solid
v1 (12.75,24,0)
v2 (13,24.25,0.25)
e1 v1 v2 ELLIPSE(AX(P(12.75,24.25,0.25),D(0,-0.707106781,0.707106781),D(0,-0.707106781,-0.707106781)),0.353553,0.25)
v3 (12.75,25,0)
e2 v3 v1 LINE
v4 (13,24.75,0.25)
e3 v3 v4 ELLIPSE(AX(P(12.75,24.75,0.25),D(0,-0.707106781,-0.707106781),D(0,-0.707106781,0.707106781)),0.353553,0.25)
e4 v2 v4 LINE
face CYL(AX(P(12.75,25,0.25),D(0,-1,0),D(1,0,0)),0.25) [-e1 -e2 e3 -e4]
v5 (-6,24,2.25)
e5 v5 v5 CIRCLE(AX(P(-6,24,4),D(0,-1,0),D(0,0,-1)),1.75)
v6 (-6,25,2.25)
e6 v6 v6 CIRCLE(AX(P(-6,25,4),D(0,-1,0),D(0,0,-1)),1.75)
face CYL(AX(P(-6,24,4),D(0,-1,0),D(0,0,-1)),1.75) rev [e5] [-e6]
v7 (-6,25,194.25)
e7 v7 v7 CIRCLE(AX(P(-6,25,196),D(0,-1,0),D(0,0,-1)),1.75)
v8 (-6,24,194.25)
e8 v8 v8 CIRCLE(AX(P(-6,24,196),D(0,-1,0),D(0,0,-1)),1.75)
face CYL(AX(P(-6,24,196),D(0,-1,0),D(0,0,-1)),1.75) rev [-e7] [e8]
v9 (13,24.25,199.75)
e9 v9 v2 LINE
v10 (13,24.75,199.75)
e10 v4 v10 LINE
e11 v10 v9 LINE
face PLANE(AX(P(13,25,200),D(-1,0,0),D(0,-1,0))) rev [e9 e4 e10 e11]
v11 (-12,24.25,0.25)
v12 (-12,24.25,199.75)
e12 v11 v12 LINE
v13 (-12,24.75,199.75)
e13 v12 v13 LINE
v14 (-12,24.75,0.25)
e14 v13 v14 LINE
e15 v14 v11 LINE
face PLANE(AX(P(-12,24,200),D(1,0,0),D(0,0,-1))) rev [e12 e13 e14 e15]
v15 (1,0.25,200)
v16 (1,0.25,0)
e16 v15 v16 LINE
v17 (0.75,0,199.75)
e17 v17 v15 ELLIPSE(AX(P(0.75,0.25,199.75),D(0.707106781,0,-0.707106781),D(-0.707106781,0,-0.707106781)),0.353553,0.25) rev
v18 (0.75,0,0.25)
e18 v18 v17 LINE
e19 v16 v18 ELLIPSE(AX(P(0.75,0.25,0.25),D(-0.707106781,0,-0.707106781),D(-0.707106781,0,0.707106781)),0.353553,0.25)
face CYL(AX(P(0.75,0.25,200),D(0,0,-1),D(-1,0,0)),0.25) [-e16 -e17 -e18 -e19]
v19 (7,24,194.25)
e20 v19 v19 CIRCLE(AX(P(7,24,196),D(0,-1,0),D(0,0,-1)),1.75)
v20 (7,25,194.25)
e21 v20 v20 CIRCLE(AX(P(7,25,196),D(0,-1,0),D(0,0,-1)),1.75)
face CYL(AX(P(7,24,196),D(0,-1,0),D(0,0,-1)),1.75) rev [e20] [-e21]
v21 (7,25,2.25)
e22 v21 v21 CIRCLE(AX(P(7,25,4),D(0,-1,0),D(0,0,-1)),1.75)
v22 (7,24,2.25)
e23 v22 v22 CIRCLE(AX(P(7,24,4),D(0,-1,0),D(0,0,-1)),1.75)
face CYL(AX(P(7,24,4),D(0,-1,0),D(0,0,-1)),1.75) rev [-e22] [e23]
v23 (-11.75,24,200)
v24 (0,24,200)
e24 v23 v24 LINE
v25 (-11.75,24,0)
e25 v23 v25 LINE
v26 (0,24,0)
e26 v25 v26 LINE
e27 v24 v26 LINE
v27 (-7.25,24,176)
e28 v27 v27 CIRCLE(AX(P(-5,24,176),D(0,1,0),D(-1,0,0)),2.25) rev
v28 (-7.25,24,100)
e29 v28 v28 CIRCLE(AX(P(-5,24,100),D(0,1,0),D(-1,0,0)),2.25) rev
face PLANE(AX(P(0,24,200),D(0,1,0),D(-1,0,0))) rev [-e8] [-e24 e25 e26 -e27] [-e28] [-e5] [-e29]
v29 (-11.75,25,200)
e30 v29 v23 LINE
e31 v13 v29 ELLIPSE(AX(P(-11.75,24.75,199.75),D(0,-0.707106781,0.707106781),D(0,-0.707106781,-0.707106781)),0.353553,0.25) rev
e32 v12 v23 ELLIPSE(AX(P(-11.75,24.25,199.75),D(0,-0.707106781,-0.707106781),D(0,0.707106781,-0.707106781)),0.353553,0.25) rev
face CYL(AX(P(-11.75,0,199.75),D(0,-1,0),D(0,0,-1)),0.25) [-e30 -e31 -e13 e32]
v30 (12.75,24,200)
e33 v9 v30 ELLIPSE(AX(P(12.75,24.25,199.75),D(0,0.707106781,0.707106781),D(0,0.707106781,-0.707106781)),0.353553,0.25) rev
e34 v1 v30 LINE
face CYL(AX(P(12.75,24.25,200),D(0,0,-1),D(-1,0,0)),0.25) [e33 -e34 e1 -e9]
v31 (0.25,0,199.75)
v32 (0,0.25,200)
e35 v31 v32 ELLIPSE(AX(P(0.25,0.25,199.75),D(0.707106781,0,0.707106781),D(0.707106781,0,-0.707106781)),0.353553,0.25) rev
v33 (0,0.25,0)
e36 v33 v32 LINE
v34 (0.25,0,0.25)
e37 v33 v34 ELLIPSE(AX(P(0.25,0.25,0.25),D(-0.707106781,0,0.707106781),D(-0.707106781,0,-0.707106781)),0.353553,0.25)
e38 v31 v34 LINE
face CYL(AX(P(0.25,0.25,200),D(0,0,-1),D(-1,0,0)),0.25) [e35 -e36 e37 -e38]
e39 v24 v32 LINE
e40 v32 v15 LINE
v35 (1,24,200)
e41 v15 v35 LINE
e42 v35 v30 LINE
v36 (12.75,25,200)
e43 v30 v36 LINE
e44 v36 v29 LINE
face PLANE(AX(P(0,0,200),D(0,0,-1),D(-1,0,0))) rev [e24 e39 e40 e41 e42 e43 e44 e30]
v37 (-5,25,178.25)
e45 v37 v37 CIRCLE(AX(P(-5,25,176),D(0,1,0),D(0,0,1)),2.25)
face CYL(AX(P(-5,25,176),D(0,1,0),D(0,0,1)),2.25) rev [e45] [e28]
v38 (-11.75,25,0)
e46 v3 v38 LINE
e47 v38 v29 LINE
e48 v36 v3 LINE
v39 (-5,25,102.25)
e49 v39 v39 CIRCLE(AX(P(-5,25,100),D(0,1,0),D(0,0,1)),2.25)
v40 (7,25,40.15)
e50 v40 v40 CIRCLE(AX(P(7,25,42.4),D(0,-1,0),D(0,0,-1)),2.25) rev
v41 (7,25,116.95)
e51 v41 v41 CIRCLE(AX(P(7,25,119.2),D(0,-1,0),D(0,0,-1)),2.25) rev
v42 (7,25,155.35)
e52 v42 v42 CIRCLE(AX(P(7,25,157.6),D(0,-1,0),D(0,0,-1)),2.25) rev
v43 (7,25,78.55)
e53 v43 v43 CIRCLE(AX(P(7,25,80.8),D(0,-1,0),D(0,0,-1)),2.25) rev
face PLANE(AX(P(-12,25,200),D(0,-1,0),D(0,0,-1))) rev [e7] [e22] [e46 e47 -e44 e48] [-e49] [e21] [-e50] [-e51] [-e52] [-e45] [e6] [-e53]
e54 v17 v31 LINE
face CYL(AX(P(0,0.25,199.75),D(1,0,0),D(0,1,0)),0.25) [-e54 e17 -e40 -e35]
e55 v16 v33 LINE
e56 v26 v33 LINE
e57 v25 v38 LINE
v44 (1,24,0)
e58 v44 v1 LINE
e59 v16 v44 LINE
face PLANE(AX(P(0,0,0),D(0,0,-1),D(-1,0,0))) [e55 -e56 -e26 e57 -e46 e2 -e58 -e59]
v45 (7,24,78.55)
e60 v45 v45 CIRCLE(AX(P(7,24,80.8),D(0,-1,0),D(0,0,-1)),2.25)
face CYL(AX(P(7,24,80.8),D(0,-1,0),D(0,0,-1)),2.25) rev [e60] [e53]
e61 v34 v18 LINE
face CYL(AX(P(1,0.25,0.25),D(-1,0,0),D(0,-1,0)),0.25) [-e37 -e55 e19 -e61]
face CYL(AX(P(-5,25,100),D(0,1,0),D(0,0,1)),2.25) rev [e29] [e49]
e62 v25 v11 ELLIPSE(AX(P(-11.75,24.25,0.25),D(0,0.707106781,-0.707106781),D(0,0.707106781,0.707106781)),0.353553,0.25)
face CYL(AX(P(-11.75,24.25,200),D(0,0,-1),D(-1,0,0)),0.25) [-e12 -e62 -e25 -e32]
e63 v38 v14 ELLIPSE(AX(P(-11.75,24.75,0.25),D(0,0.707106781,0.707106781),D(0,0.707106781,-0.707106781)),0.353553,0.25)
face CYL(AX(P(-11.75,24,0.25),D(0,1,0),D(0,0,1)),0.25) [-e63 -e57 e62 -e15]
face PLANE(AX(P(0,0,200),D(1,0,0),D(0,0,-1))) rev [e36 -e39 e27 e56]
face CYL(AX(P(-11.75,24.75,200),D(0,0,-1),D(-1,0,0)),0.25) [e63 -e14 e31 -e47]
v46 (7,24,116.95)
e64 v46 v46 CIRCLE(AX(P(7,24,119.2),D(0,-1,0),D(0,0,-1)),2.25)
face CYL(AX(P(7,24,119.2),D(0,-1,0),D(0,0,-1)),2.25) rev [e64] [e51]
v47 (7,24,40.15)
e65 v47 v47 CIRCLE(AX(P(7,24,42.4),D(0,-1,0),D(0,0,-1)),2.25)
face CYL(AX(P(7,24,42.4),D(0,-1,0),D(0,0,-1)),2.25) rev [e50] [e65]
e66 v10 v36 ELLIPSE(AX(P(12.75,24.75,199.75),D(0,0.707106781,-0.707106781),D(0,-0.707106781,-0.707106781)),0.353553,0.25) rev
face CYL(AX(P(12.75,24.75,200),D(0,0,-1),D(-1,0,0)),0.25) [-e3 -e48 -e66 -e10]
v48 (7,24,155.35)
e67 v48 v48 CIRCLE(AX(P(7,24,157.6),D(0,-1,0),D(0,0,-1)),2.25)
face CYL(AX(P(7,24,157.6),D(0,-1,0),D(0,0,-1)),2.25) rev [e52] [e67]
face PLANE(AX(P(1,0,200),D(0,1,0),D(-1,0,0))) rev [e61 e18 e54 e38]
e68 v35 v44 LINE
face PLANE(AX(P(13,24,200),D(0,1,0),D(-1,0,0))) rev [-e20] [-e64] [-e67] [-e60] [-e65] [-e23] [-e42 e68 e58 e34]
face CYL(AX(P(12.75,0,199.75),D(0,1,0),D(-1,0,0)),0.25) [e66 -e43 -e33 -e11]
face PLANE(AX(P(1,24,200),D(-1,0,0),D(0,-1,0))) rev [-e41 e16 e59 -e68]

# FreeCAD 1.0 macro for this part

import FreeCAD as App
import Part
import Sketcher
Q = App.Units.Quantity


def edges_at(feature, points):
    """Names of the edges that pass closest to the given points."""
    edges = feature.Shape.Edges
    near = lambda p: min(range(len(edges)), key=lambda i: edges[i].distToShape(Part.Vertex(*p))[0])
    return sorted({f"Edge{near(p) + 1}" for p in points})


def add_polygon(sketch, points):
    """Adds a closed chain of lines whose ends are joined by coincident constraints."""
    first, n = sketch.GeometryCount, len(points)
    for a, b in zip(points, points[1:] + points[:1]):
        sketch.addGeometry(Part.LineSegment(App.Vector(*a, 0), App.Vector(*b, 0)), False)
    for i in range(n):
        sketch.addConstraint(Sketcher.Constraint("Coincident", first + i, 2, first + (i + 1) % n, 1))

doc = App.newDocument("Part")
body = doc.addObject("PartDesign::Body", "Body")

# Sketch on XY plane
sketch1 = body.newObject("Sketcher::SketchObject", "Sketch")
sketch1.AttachmentSupport = (doc.getObject("XY_Plane"), [""])
sketch1.MapMode = "FlatFace"
add_polygon(sketch1, [(0, 24), (0, 0), (1, 0), (1, 24), (13, 24), (13, 25), (-12, 25), (-12, 24)])  # lines 0-7
sketch1.addConstraint([
    Sketcher.Constraint("Vertical", 0),
    Sketcher.Constraint("Horizontal", 1),
    Sketcher.Constraint("Vertical", 2),
    Sketcher.Constraint("Horizontal", 3),
    Sketcher.Constraint("Vertical", 4),
    Sketcher.Constraint("Horizontal", 5),
    Sketcher.Constraint("Vertical", 6),
    Sketcher.Constraint("Horizontal", 7),
    Sketcher.Constraint("Coincident", 0, 2, -1, 1),
    Sketcher.Constraint("Horizontal", 3, 2, 6, 2),
    Sketcher.Constraint("Equal", 3, 7),
    Sketcher.Constraint("Equal", 1, 4),
    Sketcher.Constraint("DistanceX", 1, 1, 1, 2, Q("1 mm")),
    Sketcher.Constraint("DistanceX", 3, 1, 3, 2, Q("12 mm")),
    Sketcher.Constraint("DistanceY", 0, 2, 0, 1, Q("24 mm")),
])
pad1 = body.newObject("PartDesign::Pad", "Pad")
pad1.Profile = sketch1
pad1.Length = 200
doc.recompute()

fillet = body.newObject("PartDesign::Fillet", "Fillet")
fillet.Base = (pad1, edges_at(pad1, [
    (0, 0, 100),
    (-12, 24, 100),
    (-12, 25, 100),
    (13, 24.5, 200),
    (13, 25, 100),
    (13, 24, 100),
    (1, 0, 100),
    (-12, 24.5, 200),
    (0.5, 0, 200),
    (-12, 24.5, 0),
    (13, 24.5, 0),
    (0.5, 0, 0),
]))
fillet.Radius = 0.25

# Sketch on XZ plane
sketch2 = body.newObject("Sketcher::SketchObject", "Sketch001")
sketch2.AttachmentSupport = (doc.getObject("XZ_Plane"), [""])
sketch2.MapMode = "FlatFace"
sketch2.AttachmentOffset = App.Placement(App.Vector(0, 0, -24), App.Rotation())
sketch2.addGeometry([
    Part.Circle(App.Vector(-6, 196, 0), App.Vector(0, 0, 1), 1.8),
    Part.Circle(App.Vector(7, 196, 0), App.Vector(0, 0, 1), 1.8),
    Part.Circle(App.Vector(-6, 4, 0), App.Vector(0, 0, 1), 1.8),
    Part.Circle(App.Vector(7, 4, 0), App.Vector(0, 0, 1), 1.8),
], False)
sketch2.addConstraint([
    Sketcher.Constraint("Equal", 0, 1),
    Sketcher.Constraint("Equal", 1, 2),
    Sketcher.Constraint("Equal", 2, 3),
    Sketcher.Constraint("Horizontal", 0, 3, 1, 3),
    Sketcher.Constraint("Horizontal", 2, 3, 3, 3),
    Sketcher.Constraint("Vertical", 0, 3, 2, 3),
    Sketcher.Constraint("Vertical", 1, 3, 3, 3),
    Sketcher.Constraint("Diameter", 0, Q("3.5 mm")),
    Sketcher.Constraint("DistanceX", 0, 3, -1, 1, Q("6 mm")),
    Sketcher.Constraint("DistanceY", -1, 1, 0, 3, Q("196 mm")),
    Sketcher.Constraint("DistanceX", -1, 1, 1, 3, Q("7 mm")),
    Sketcher.Constraint("DistanceY", -1, 1, 2, 3, Q("4 mm")),
])
doc.recompute()
hole = body.newObject("PartDesign::Hole", "Hole")
hole.Profile = sketch2
hole.ThreadType = "None"
hole.Diameter = 3.5
hole.DepthType = "ThroughAll"

# Sketch on XZ plane
sketch3 = body.newObject("Sketcher::SketchObject", "Sketch002")
sketch3.AttachmentSupport = (doc.getObject("XZ_Plane"), [""])
sketch3.MapMode = "FlatFace"
sketch3.AttachmentOffset = App.Placement(App.Vector(0, 0, -25), App.Rotation())
sketch3.addGeometry([
    Part.Circle(App.Vector(-5, 176, 0), App.Vector(0, 0, 1), 2.2),
    Part.Circle(App.Vector(-5, 100, 0), App.Vector(0, 0, 1), 2.2),
], False)
sketch3.addConstraint([
    Sketcher.Constraint("Equal", 0, 1),
    Sketcher.Constraint("Vertical", 0, 3, 1, 3),
    Sketcher.Constraint("Diameter", 0, Q("4.5 mm")),
    Sketcher.Constraint("DistanceX", 0, 3, -1, 1, Q("5 mm")),
    Sketcher.Constraint("DistanceY", -1, 1, 0, 3, Q("176 mm")),
    Sketcher.Constraint("DistanceY", -1, 1, 1, 3, Q("100 mm")),
])
doc.recompute()
hole2 = body.newObject("PartDesign::Hole", "Hole001")
hole2.Profile = sketch3
hole2.ThreadType = "None"
hole2.Diameter = 4.5
hole2.DepthType = "Dimension"
hole2.Depth = 1
hole2.DrillPoint = "Angled"
hole2.DrillPointAngle = 118
hole2.Reversed = True

# Sketch on YZ plane
sketch4 = body.newObject("Sketcher::SketchObject", "Sketch003")
sketch4.AttachmentSupport = (doc.getObject("YZ_Plane"), [""])
sketch4.MapMode = "FlatFace"
sketch4.AttachmentOffset = App.Placement(App.Vector(0, 0, 7), App.Rotation())
add_polygon(sketch4, [(26.4, 157.6), (24, 157.6), (24, 155.3), (25, 155.3)])  # lines 0-3
sketch4.addGeometry(Part.LineSegment(App.Vector(24, 157.6, 0), App.Vector(26.4, 157.6, 0)), True)  # axis
sketch4.addConstraint([
    Sketcher.Constraint("Horizontal", 0),
    Sketcher.Constraint("Vertical", 1),
    Sketcher.Constraint("Horizontal", 2),
    Sketcher.Constraint("Horizontal", 4),
    Sketcher.Constraint("Coincident", 4, 1, 0, 2),
    Sketcher.Constraint("Equal", 0, 4),
    Sketcher.Constraint("DistanceX", 2, 1, 2, 2, Q("1 mm")),
    Sketcher.Constraint("Angle", 3, Q("59 deg")),
    Sketcher.Constraint("DistanceX", -1, 1, 0, 2, Q("24 mm")),
    Sketcher.Constraint("DistanceY", 1, 2, 1, 1, Q("2.25 mm")),
    Sketcher.Constraint("DistanceY", -1, 1, 0, 2, Q("157.6 mm")),
])
groove = body.newObject("PartDesign::Groove", "Groove")
groove.Profile = sketch4
groove.ReferenceAxis = (sketch4, ["Axis0"])
groove.Angle = 360
doc.recompute()

linearpattern = body.newObject("PartDesign::LinearPattern", "LinearPattern")
linearpattern.Originals = [groove]
linearpattern.Direction = (doc.getObject("Z_Axis"), [""])
linearpattern.Mode = "offset"
linearpattern.Offset = 38.4
linearpattern.Occurrences = 4
linearpattern.Reversed = True
body.Tip = linearpattern

doc.recompute()
